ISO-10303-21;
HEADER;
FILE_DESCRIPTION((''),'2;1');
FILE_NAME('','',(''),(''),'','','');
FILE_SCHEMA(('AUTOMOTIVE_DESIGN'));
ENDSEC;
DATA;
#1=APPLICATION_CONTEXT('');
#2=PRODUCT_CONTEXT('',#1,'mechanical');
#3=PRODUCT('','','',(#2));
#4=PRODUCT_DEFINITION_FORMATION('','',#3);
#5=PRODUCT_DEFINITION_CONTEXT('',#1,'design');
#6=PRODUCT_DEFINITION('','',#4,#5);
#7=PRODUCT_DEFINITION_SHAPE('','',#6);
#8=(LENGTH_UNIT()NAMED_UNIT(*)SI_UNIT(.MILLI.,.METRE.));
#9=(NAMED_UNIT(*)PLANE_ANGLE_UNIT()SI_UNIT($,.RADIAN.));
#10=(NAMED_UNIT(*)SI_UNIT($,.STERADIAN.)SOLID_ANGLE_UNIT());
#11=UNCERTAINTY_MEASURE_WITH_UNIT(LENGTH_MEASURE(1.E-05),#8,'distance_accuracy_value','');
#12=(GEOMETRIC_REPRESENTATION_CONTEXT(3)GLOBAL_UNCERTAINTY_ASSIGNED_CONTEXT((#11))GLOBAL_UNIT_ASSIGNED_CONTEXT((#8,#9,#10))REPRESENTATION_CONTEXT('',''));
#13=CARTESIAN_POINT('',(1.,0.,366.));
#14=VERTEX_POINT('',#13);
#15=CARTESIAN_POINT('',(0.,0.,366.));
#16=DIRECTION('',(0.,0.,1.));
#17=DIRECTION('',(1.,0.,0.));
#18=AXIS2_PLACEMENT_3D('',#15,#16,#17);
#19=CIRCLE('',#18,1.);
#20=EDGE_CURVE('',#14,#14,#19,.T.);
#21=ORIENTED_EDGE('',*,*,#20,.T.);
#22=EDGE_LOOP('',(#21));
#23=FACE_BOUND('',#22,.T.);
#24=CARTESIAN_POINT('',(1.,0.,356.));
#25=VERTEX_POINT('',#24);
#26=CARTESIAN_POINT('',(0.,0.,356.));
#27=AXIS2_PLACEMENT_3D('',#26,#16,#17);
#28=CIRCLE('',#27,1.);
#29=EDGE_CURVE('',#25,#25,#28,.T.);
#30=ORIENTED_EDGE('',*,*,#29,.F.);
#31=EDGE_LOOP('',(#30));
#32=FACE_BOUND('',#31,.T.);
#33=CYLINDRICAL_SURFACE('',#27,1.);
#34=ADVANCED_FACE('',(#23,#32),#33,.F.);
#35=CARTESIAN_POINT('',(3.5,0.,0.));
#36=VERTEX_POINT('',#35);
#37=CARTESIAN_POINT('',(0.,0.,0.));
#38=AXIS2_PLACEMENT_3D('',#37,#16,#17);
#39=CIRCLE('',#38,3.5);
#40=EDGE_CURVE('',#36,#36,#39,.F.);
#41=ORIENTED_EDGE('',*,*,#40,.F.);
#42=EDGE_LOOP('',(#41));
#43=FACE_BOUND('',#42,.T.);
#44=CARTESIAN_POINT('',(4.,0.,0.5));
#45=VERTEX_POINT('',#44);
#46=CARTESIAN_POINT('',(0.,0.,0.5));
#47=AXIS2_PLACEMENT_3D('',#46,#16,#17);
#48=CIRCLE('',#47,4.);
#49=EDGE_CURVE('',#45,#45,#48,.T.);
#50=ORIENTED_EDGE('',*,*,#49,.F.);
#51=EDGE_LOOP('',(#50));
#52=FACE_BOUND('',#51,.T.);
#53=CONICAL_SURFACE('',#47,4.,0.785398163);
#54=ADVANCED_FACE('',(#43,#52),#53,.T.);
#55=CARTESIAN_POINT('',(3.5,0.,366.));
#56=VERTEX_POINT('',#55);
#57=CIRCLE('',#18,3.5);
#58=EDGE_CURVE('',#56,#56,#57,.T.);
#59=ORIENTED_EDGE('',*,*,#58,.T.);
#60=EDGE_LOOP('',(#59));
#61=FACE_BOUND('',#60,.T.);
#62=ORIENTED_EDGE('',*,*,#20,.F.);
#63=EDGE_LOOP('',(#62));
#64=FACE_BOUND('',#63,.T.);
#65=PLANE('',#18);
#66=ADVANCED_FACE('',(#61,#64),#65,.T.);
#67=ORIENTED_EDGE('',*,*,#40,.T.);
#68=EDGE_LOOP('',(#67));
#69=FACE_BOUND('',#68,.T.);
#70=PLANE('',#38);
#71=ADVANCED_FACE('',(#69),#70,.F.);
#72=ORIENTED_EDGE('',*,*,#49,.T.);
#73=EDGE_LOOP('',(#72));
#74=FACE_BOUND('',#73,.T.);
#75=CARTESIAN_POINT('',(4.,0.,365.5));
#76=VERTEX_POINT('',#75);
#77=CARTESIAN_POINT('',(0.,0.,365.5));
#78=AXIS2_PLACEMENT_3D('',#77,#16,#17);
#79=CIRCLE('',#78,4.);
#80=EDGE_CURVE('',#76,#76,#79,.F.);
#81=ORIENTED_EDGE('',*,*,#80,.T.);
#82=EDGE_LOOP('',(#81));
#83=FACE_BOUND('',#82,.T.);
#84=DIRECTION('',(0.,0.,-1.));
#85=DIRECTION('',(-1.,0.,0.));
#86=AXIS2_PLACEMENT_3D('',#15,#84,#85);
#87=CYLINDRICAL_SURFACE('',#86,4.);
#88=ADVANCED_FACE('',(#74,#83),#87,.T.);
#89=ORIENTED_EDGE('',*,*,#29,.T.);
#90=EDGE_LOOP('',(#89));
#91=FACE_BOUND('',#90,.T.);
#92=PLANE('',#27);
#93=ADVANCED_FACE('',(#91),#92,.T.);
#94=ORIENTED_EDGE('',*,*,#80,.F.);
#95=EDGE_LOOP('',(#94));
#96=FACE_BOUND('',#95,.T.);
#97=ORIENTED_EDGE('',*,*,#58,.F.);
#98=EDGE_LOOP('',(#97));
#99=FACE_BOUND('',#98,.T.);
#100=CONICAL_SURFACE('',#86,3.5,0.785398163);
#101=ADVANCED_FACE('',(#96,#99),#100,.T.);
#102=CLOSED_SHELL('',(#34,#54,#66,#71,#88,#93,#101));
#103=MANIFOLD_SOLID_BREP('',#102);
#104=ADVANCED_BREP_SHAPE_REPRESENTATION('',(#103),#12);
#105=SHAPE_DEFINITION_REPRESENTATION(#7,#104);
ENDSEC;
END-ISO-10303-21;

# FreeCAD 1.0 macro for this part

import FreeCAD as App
import Part
import Sketcher
Q = App.Units.Quantity


def edges_at(feature, points):
    """Names of the edges that pass closest to the given points."""
    edges = feature.Shape.Edges
    near = lambda p: min(range(len(edges)), key=lambda i: edges[i].distToShape(Part.Vertex(*p))[0])
    return sorted({f"Edge{near(p) + 1}" for p in points})

doc = App.newDocument("Part")
body = doc.addObject("PartDesign::Body", "Body")

sketch1 = body.newObject("Sketcher::SketchObject", "Sketch")
sketch1.AttachmentSupport = (doc.getObject("XY_Plane"), [""])
sketch1.MapMode = "FlatFace"
sketch1.addGeometry(Part.Circle(App.Vector(0, 0, 0), App.Vector(0, 0, 1), 4), False)
sketch1.addConstraint([
    Sketcher.Constraint("Coincident", 0, 3, -1, 1),
    Sketcher.Constraint("Diameter", 0, Q("8 mm")),
])
pad1 = body.newObject("PartDesign::Pad", "Pad")
pad1.Profile = sketch1
pad1.Length = 366

sketch2 = body.newObject("Sketcher::SketchObject", "Sketch001")
sketch2.AttachmentSupport = (doc.getObject("XY_Plane"), [""])
sketch2.MapMode = "FlatFace"
sketch2.AttachmentOffset = App.Placement(App.Vector(0, 0, 366), App.Rotation())
sketch2.addGeometry(Part.Circle(App.Vector(0, 0, 0), App.Vector(0, 0, 1), 1), False)
sketch2.addConstraint([
    Sketcher.Constraint("Coincident", 0, 3, -1, 1),
    Sketcher.Constraint("Diameter", 0, Q("2 mm")),
])
pocket1 = body.newObject("PartDesign::Pocket", "Pocket")
pocket1.Profile = sketch2
pocket1.Length = 10
doc.recompute()

chamfer = body.newObject("PartDesign::Chamfer", "Chamfer")
chamfer.Base = (pocket1, edges_at(pocket1, [(-4, 0, 0), (-4, 0, 366)]))
chamfer.Size = 0.5

doc.recompute()
